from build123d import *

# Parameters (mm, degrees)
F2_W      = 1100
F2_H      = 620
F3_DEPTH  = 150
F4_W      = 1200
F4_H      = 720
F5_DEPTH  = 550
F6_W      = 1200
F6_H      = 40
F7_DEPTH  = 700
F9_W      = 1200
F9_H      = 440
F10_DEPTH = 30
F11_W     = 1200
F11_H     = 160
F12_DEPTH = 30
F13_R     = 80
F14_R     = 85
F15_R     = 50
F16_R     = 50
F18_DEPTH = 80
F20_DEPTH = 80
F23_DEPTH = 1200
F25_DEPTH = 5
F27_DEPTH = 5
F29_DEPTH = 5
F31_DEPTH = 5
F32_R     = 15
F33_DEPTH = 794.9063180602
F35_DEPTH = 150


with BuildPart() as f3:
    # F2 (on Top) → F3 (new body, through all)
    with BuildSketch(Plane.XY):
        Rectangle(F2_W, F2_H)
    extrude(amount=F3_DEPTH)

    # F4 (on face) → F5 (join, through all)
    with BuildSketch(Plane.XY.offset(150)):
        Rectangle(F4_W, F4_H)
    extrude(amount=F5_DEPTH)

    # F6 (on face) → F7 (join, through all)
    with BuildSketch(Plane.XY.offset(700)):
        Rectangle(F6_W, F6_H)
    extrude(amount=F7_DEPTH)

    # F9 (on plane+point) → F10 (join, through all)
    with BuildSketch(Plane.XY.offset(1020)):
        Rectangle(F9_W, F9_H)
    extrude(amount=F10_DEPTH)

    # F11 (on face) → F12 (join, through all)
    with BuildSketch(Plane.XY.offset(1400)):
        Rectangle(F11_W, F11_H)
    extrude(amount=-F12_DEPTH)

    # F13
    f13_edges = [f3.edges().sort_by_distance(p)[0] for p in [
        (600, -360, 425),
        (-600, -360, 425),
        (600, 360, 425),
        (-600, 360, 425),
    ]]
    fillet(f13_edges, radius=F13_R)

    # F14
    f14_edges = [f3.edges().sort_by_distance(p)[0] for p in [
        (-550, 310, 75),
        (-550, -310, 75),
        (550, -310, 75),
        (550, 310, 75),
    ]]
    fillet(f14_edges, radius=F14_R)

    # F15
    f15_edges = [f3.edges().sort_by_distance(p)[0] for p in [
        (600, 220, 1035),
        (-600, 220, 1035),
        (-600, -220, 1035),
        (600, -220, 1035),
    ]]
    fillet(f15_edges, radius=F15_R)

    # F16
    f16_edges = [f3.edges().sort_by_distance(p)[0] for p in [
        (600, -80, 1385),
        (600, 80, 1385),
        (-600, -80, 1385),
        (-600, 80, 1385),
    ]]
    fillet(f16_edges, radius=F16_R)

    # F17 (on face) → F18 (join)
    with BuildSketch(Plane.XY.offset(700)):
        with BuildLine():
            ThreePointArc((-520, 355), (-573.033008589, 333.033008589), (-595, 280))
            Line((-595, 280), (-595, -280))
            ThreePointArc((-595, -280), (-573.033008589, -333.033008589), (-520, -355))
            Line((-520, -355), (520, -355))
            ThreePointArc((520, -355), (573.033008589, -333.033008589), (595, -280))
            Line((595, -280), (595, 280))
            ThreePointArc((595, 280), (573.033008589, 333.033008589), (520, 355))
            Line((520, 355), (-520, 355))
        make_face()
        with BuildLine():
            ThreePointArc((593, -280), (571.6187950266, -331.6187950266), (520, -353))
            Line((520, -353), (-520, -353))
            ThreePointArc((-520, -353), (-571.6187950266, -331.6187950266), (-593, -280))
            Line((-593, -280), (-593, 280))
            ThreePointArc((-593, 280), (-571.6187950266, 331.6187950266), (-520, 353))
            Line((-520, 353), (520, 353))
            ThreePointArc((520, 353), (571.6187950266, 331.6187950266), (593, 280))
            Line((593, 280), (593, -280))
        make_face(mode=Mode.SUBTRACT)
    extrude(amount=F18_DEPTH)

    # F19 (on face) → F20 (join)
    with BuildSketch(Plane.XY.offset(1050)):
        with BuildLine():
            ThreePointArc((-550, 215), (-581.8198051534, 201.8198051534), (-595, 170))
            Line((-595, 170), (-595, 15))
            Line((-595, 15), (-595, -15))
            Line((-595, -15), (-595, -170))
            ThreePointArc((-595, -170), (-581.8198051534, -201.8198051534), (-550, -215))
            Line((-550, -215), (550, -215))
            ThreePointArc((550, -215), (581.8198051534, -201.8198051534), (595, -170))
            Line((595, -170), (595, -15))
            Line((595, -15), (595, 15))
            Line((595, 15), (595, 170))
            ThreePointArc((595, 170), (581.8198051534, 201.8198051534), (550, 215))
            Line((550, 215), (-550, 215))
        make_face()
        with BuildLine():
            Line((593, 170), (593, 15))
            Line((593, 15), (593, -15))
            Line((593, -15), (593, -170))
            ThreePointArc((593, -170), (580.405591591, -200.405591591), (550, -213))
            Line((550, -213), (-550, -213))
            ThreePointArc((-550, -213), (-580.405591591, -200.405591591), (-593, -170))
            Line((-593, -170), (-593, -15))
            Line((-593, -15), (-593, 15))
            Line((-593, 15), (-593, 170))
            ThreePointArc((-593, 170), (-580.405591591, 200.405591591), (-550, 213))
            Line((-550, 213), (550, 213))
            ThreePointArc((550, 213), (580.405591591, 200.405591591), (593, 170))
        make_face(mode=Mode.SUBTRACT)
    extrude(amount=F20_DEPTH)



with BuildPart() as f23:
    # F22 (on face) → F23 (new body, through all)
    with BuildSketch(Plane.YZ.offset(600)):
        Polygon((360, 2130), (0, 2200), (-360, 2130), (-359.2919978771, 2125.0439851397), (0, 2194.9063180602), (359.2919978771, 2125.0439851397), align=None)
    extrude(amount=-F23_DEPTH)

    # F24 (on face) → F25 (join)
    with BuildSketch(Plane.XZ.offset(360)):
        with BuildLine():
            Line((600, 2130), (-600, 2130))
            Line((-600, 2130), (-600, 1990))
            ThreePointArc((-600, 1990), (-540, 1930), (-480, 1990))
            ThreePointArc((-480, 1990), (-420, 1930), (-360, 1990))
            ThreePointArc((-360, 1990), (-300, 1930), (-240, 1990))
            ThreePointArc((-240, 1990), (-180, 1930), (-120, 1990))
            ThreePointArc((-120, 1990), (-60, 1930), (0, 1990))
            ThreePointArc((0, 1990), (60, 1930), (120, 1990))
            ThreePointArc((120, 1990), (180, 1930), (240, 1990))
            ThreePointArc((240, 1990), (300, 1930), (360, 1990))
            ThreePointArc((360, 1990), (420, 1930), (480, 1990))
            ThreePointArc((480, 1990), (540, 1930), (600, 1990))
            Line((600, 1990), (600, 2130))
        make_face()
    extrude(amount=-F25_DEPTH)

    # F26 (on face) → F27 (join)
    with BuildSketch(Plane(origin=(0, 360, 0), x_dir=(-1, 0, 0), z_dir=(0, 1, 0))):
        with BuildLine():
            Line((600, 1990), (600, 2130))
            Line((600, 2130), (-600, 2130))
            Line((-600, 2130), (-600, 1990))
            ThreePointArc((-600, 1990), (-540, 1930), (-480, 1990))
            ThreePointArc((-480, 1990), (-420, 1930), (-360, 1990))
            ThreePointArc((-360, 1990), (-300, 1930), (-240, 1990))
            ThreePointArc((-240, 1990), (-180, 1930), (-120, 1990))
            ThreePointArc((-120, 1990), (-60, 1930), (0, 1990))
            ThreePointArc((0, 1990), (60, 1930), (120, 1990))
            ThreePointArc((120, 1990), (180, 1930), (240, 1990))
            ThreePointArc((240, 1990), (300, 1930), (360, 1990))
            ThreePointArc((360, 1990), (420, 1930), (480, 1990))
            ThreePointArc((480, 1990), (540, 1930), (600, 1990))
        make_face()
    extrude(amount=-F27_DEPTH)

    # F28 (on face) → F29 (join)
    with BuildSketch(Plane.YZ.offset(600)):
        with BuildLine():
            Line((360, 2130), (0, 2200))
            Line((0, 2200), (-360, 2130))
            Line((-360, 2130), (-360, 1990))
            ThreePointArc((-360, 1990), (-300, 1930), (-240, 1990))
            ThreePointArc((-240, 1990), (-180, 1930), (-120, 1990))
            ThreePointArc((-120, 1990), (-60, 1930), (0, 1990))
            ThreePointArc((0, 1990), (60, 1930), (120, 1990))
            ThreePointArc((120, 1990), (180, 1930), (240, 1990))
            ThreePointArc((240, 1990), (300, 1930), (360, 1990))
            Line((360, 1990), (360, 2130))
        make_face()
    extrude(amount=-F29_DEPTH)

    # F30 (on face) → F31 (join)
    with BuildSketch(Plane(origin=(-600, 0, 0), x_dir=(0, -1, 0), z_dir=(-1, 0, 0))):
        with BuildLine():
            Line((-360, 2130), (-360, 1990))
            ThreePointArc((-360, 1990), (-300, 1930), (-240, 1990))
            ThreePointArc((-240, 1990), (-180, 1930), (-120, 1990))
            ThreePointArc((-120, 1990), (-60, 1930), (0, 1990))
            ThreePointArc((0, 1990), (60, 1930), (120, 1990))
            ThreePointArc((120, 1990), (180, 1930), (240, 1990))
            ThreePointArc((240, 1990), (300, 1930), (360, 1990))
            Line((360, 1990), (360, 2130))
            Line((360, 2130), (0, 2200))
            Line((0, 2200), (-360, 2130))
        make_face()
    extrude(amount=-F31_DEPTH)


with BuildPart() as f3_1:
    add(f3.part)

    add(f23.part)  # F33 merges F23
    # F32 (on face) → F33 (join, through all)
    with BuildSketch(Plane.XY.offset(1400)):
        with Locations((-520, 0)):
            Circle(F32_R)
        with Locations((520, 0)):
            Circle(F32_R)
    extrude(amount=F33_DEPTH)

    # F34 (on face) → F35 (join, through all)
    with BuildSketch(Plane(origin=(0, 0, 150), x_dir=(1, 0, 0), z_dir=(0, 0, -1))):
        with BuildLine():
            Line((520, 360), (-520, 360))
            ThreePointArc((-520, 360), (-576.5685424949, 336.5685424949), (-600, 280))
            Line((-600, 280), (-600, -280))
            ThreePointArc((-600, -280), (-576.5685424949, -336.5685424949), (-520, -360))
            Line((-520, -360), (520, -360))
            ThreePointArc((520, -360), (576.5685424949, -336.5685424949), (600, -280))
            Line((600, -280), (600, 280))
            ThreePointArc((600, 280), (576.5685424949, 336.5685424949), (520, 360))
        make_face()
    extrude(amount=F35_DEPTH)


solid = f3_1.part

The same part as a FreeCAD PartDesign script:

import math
import FreeCAD as App
import Part
import Sketcher
from FreeCAD import Vector
Q = App.Units.Quantity


def edges_at(feature, points):
    """Names of the edges that pass closest to the given points."""
    edges = feature.Shape.Edges
    near = lambda p: min(range(len(edges)), key=lambda i: edges[i].distToShape(Part.Vertex(*p))[0])
    return sorted({f"Edge{near(p) + 1}" for p in points})

doc = App.newDocument("Part")
params = doc.addObject("Spreadsheet::Sheet", "Params")
for row, (alias, value) in enumerate([
    ("sketch1_width", "1100 mm"),
    ("sketch1_height", "620 mm"),
    ("pad1_length", "150 mm"),
    ("sketch2_width", "1200 mm"),
    ("sketch2_height", "720 mm"),
    ("pad2_length", "550 mm"),
    ("sketch3_width", "1200 mm"),
    ("sketch3_height", "40 mm"),
    ("pad3_length", "700 mm"),
    ("sketch4_width", "1200 mm"),
    ("sketch4_height", "440 mm"),
    ("pad4_length", "30 mm"),
    ("sketch5_width", "1200 mm"),
    ("sketch5_height", "160 mm"),
    ("pad5_length", "30 mm"),
    ("fillet_radius", "80 mm"),
    ("fillet2_radius", "85 mm"),
    ("fillet3_radius", "50 mm"),
    ("fillet4_radius", "50 mm"),
    ("sketch6_radius", "75 mm"),
    ("sketch6_radius2", "73 mm"),
    ("sketch6_width", "1040 mm"),
    ("sketch6_height", "560 mm"),
    ("pad6_length", "80 mm"),
    ("sketch7_radius", "45 mm"),
    ("sketch7_radius2", "43 mm"),
    ("sketch7_width", "1100 mm"),
    ("sketch7_height", "340 mm"),
    ("pad7_length", "80 mm"),
    ("pad8_length", "1200 mm"),
    ("sketch9_radius", "60 mm"),
    ("sketch9_height", "140 mm"),
    ("pad9_length", "5 mm"),
    ("sketch10_radius", "60 mm"),
    ("sketch10_height", "140 mm"),
    ("pad10_length", "5 mm"),
    ("sketch11_radius", "60 mm"),
    ("sketch11_height", "140 mm"),
    ("pad11_length", "5 mm"),
    ("sketch12_radius", "60 mm"),
    ("sketch12_height", "140 mm"),
    ("pad12_length", "5 mm"),
    ("sketch13_diameter", "30 mm"),
    ("pad13_length", "794.906318 mm"),
    ("sketch14_radius", "80 mm"),
    ("sketch14_width", "1040 mm"),
    ("sketch14_height", "560 mm"),
], start=1):
    params.set(f"A{row}", alias)
    params.set(f"B{row}", "=" + value)
    params.setAlias(f"B{row}", alias)

body = doc.addObject("PartDesign::Body", "Body")

sketch1 = doc.addObject("Sketcher::SketchObject", "Sketch")
body.addObject(sketch1)
sketch1.AttachmentSupport = (doc.XY_Plane, [""])
sketch1.MapMode = "FlatFace"
sketch1.addGeometry(Part.LineSegment(Vector(-550, 310, 0), Vector(-550, -310, 0)), False)
sketch1.addGeometry(Part.LineSegment(Vector(-550, -310, 0), Vector(550, -310, 0)), False)
sketch1.addGeometry(Part.LineSegment(Vector(550, -310, 0), Vector(550, 310, 0)), False)
sketch1.addGeometry(Part.LineSegment(Vector(550, 310, 0), Vector(-550, 310, 0)), False)
sketch1.addConstraint(Sketcher.Constraint("Coincident", 0, 2, 1, 1))
sketch1.addConstraint(Sketcher.Constraint("Coincident", 1, 2, 2, 1))
sketch1.addConstraint(Sketcher.Constraint("Coincident", 2, 2, 3, 1))
sketch1.addConstraint(Sketcher.Constraint("Coincident", 3, 2, 0, 1))
sketch1.addConstraint(Sketcher.Constraint("Vertical", 0))
sketch1.addConstraint(Sketcher.Constraint("Horizontal", 1))
sketch1.addConstraint(Sketcher.Constraint("Vertical", 2))
sketch1.addConstraint(Sketcher.Constraint("Horizontal", 3))
sketch1.addConstraint(Sketcher.Constraint("Symmetric", 0, 2, 2, 2, -1, 1))
sketch1.addConstraint(Sketcher.Constraint("DistanceX", 1, 1, 1, 2, Q("1100 mm")))
sketch1.addConstraint(Sketcher.Constraint("DistanceY", 0, 2, 0, 1, Q("620 mm")))
sketch1.setExpression("Constraints[9]", "Params.sketch1_width")
sketch1.setExpression("Constraints[10]", "Params.sketch1_height")
pad1 = doc.addObject("PartDesign::Pad", "Pad")
body.addObject(pad1)
pad1.Profile = sketch1
pad1.setExpression("Length", "Params.pad1_length")

sketch2 = doc.addObject("Sketcher::SketchObject", "Sketch001")
body.addObject(sketch2)
sketch2.AttachmentSupport = (doc.XY_Plane, [""])
sketch2.MapMode = "FlatFace"
sketch2.AttachmentOffset = App.Placement(Vector(0, 0, 150), App.Rotation())
sketch2.addGeometry(Part.LineSegment(Vector(-600, 360, 0), Vector(-600, -360, 0)), False)
sketch2.addGeometry(Part.LineSegment(Vector(-600, -360, 0), Vector(600, -360, 0)), False)
sketch2.addGeometry(Part.LineSegment(Vector(600, -360, 0), Vector(600, 360, 0)), False)
sketch2.addGeometry(Part.LineSegment(Vector(600, 360, 0), Vector(-600, 360, 0)), False)
sketch2.addConstraint(Sketcher.Constraint("Coincident", 0, 2, 1, 1))
sketch2.addConstraint(Sketcher.Constraint("Coincident", 1, 2, 2, 1))
sketch2.addConstraint(Sketcher.Constraint("Coincident", 2, 2, 3, 1))
sketch2.addConstraint(Sketcher.Constraint("Coincident", 3, 2, 0, 1))
sketch2.addConstraint(Sketcher.Constraint("Vertical", 0))
sketch2.addConstraint(Sketcher.Constraint("Horizontal", 1))
sketch2.addConstraint(Sketcher.Constraint("Vertical", 2))
sketch2.addConstraint(Sketcher.Constraint("Horizontal", 3))
sketch2.addConstraint(Sketcher.Constraint("Symmetric", 0, 2, 2, 2, -1, 1))
sketch2.addConstraint(Sketcher.Constraint("DistanceX", 1, 1, 1, 2, Q("1200 mm")))
sketch2.addConstraint(Sketcher.Constraint("DistanceY", 0, 2, 0, 1, Q("720 mm")))
sketch2.setExpression("Constraints[9]", "Params.sketch2_width")
sketch2.setExpression("Constraints[10]", "Params.sketch2_height")
pad2 = doc.addObject("PartDesign::Pad", "Pad001")
body.addObject(pad2)
pad2.Profile = sketch2
pad2.setExpression("Length", "Params.pad2_length")

sketch3 = doc.addObject("Sketcher::SketchObject", "Sketch002")
body.addObject(sketch3)
sketch3.AttachmentSupport = (doc.XY_Plane, [""])
sketch3.MapMode = "FlatFace"
sketch3.AttachmentOffset = App.Placement(Vector(0, 0, 700), App.Rotation())
sketch3.addGeometry(Part.LineSegment(Vector(-600, 20, 0), Vector(-600, -20, 0)), False)
sketch3.addGeometry(Part.LineSegment(Vector(-600, -20, 0), Vector(600, -20, 0)), False)
sketch3.addGeometry(Part.LineSegment(Vector(600, -20, 0), Vector(600, 20, 0)), False)
sketch3.addGeometry(Part.LineSegment(Vector(600, 20, 0), Vector(-600, 20, 0)), False)
sketch3.addConstraint(Sketcher.Constraint("Coincident", 0, 2, 1, 1))
sketch3.addConstraint(Sketcher.Constraint("Coincident", 1, 2, 2, 1))
sketch3.addConstraint(Sketcher.Constraint("Coincident", 2, 2, 3, 1))
sketch3.addConstraint(Sketcher.Constraint("Coincident", 3, 2, 0, 1))
sketch3.addConstraint(Sketcher.Constraint("Vertical", 0))
sketch3.addConstraint(Sketcher.Constraint("Horizontal", 1))
sketch3.addConstraint(Sketcher.Constraint("Vertical", 2))
sketch3.addConstraint(Sketcher.Constraint("Horizontal", 3))
sketch3.addConstraint(Sketcher.Constraint("Symmetric", 0, 2, 2, 2, -1, 1))
sketch3.addConstraint(Sketcher.Constraint("DistanceX", 1, 1, 1, 2, Q("1200 mm")))
sketch3.addConstraint(Sketcher.Constraint("DistanceY", 0, 2, 0, 1, Q("40 mm")))
sketch3.setExpression("Constraints[9]", "Params.sketch3_width")
sketch3.setExpression("Constraints[10]", "Params.sketch3_height")
pad3 = doc.addObject("PartDesign::Pad", "Pad002")
body.addObject(pad3)
pad3.Profile = sketch3
pad3.setExpression("Length", "Params.pad3_length")

sketch4 = doc.addObject("Sketcher::SketchObject", "Sketch003")
body.addObject(sketch4)
sketch4.AttachmentSupport = (doc.XY_Plane, [""])
sketch4.MapMode = "FlatFace"
sketch4.AttachmentOffset = App.Placement(Vector(0, 0, 1020), App.Rotation())
sketch4.addGeometry(Part.LineSegment(Vector(-600, 220, 0), Vector(-600, -220, 0)), False)
sketch4.addGeometry(Part.LineSegment(Vector(-600, -220, 0), Vector(600, -220, 0)), False)
sketch4.addGeometry(Part.LineSegment(Vector(600, -220, 0), Vector(600, 220, 0)), False)
sketch4.addGeometry(Part.LineSegment(Vector(600, 220, 0), Vector(-600, 220, 0)), False)
sketch4.addConstraint(Sketcher.Constraint("Coincident", 0, 2, 1, 1))
sketch4.addConstraint(Sketcher.Constraint("Coincident", 1, 2, 2, 1))
sketch4.addConstraint(Sketcher.Constraint("Coincident", 2, 2, 3, 1))
sketch4.addConstraint(Sketcher.Constraint("Coincident", 3, 2, 0, 1))
sketch4.addConstraint(Sketcher.Constraint("Vertical", 0))
sketch4.addConstraint(Sketcher.Constraint("Horizontal", 1))
sketch4.addConstraint(Sketcher.Constraint("Vertical", 2))
sketch4.addConstraint(Sketcher.Constraint("Horizontal", 3))
sketch4.addConstraint(Sketcher.Constraint("Symmetric", 0, 2, 2, 2, -1, 1))
sketch4.addConstraint(Sketcher.Constraint("DistanceX", 1, 1, 1, 2, Q("1200 mm")))
sketch4.addConstraint(Sketcher.Constraint("DistanceY", 0, 2, 0, 1, Q("440 mm")))
sketch4.setExpression("Constraints[9]", "Params.sketch4_width")
sketch4.setExpression("Constraints[10]", "Params.sketch4_height")
pad4 = doc.addObject("PartDesign::Pad", "Pad003")
body.addObject(pad4)
pad4.Profile = sketch4
pad4.setExpression("Length", "Params.pad4_length")

sketch5 = doc.addObject("Sketcher::SketchObject", "Sketch004")
body.addObject(sketch5)
sketch5.AttachmentSupport = (doc.XY_Plane, [""])
sketch5.MapMode = "FlatFace"
sketch5.AttachmentOffset = App.Placement(Vector(0, 0, 1400), App.Rotation())
sketch5.addGeometry(Part.LineSegment(Vector(-600, 80, 0), Vector(-600, -80, 0)), False)
sketch5.addGeometry(Part.LineSegment(Vector(-600, -80, 0), Vector(600, -80, 0)), False)
sketch5.addGeometry(Part.LineSegment(Vector(600, -80, 0), Vector(600, 80, 0)), False)
sketch5.addGeometry(Part.LineSegment(Vector(600, 80, 0), Vector(-600, 80, 0)), False)
sketch5.addConstraint(Sketcher.Constraint("Coincident", 0, 2, 1, 1))
sketch5.addConstraint(Sketcher.Constraint("Coincident", 1, 2, 2, 1))
sketch5.addConstraint(Sketcher.Constraint("Coincident", 2, 2, 3, 1))
sketch5.addConstraint(Sketcher.Constraint("Coincident", 3, 2, 0, 1))
sketch5.addConstraint(Sketcher.Constraint("Vertical", 0))
sketch5.addConstraint(Sketcher.Constraint("Horizontal", 1))
sketch5.addConstraint(Sketcher.Constraint("Vertical", 2))
sketch5.addConstraint(Sketcher.Constraint("Horizontal", 3))
sketch5.addConstraint(Sketcher.Constraint("Symmetric", 0, 2, 2, 2, -1, 1))
sketch5.addConstraint(Sketcher.Constraint("DistanceX", 1, 1, 1, 2, Q("1200 mm")))
sketch5.addConstraint(Sketcher.Constraint("DistanceY", 0, 2, 0, 1, Q("160 mm")))
sketch5.setExpression("Constraints[9]", "Params.sketch5_width")
sketch5.setExpression("Constraints[10]", "Params.sketch5_height")
pad5 = doc.addObject("PartDesign::Pad", "Pad004")
body.addObject(pad5)
pad5.Profile = sketch5
pad5.setExpression("Length", "Params.pad5_length")
pad5.Reversed = True
doc.recompute()

fillet = doc.addObject("PartDesign::Fillet", "Fillet")
body.addObject(fillet)
fillet.Base = (pad5, edges_at(pad5, [
    (600, -360, 425),
    (-600, -360, 425),
    (600, 360, 425),
    (-600, 360, 425),
]))
fillet.setExpression("Radius", "Params.fillet_radius")
doc.recompute()

fillet2 = doc.addObject("PartDesign::Fillet", "Fillet001")
body.addObject(fillet2)
fillet2.Base = (fillet, edges_at(fillet, [
    (-550, 310, 75),
    (-550, -310, 75),
    (550, -310, 75),
    (550, 310, 75),
]))
fillet2.setExpression("Radius", "Params.fillet2_radius")
doc.recompute()

fillet3 = doc.addObject("PartDesign::Fillet", "Fillet002")
body.addObject(fillet3)
fillet3.Base = (fillet2, edges_at(fillet2, [
    (600, 220, 1035),
    (-600, 220, 1035),
    (-600, -220, 1035),
    (600, -220, 1035),
]))
fillet3.setExpression("Radius", "Params.fillet3_radius")
doc.recompute()

fillet4 = doc.addObject("PartDesign::Fillet", "Fillet003")
body.addObject(fillet4)
fillet4.Base = (fillet3, edges_at(fillet3, [
    (600, -80, 1385),
    (600, 80, 1385),
    (-600, -80, 1385),
    (-600, 80, 1385),
]))
fillet4.setExpression("Radius", "Params.fillet4_radius")

sketch6 = doc.addObject("Sketcher::SketchObject", "Sketch005")
body.addObject(sketch6)
sketch6.AttachmentSupport = (doc.XY_Plane, [""])
sketch6.MapMode = "FlatFace"
sketch6.AttachmentOffset = App.Placement(Vector(0, 0, 700), App.Rotation())
sketch6.addGeometry(Part.ArcOfCircle(Part.Circle(Vector(-520, 280, 0), Vector(0, 0, 1), 75), math.radians(90), math.radians(180)), False)
sketch6.addGeometry(Part.LineSegment(Vector(-595, 280, 0), Vector(-595, -280, 0)), False)
sketch6.addGeometry(Part.ArcOfCircle(Part.Circle(Vector(-520, -280, 0), Vector(0, 0, 1), 75), math.radians(180), math.radians(270)), False)
sketch6.addGeometry(Part.LineSegment(Vector(-520, -355, 0), Vector(520, -355, 0)), False)
sketch6.addGeometry(Part.ArcOfCircle(Part.Circle(Vector(520, -280, 0), Vector(0, 0, 1), 75), math.radians(-90), math.radians(0)), False)
sketch6.addGeometry(Part.LineSegment(Vector(595, -280, 0), Vector(595, 280, 0)), False)
sketch6.addGeometry(Part.ArcOfCircle(Part.Circle(Vector(520, 280, 0), Vector(0, 0, 1), 75), math.radians(0), math.radians(90)), False)
sketch6.addGeometry(Part.LineSegment(Vector(520, 355, 0), Vector(-520, 355, 0)), False)
sketch6.addGeometry(Part.LineSegment(Vector(593, 280, 0), Vector(593, -280, 0)), False)
sketch6.addGeometry(Part.ArcOfCircle(Part.Circle(Vector(520, -280, 0), Vector(0, 0, 1), 73), math.radians(-90), math.radians(0)), False)
sketch6.addGeometry(Part.LineSegment(Vector(520, -353, 0), Vector(-520, -353, 0)), False)
sketch6.addGeometry(Part.ArcOfCircle(Part.Circle(Vector(-520, -280, 0), Vector(0, 0, 1), 73), math.radians(180), math.radians(270)), False)
sketch6.addGeometry(Part.LineSegment(Vector(-593, -280, 0), Vector(-593, 280, 0)), False)
sketch6.addGeometry(Part.ArcOfCircle(Part.Circle(Vector(-520, 280, 0), Vector(0, 0, 1), 73), math.radians(90), math.radians(180)), False)
sketch6.addGeometry(Part.LineSegment(Vector(-520, 353, 0), Vector(520, 353, 0)), False)
sketch6.addGeometry(Part.ArcOfCircle(Part.Circle(Vector(520, 280, 0), Vector(0, 0, 1), 73), math.radians(0), math.radians(90)), False)
sketch6.addConstraint(Sketcher.Constraint("Tangent", 0, 2, 1, 1))
sketch6.addConstraint(Sketcher.Constraint("Tangent", 1, 2, 2, 1))
sketch6.addConstraint(Sketcher.Constraint("Tangent", 2, 2, 3, 1))
sketch6.addConstraint(Sketcher.Constraint("Tangent", 3, 2, 4, 1))
sketch6.addConstraint(Sketcher.Constraint("Tangent", 4, 2, 5, 1))
sketch6.addConstraint(Sketcher.Constraint("Tangent", 5, 2, 6, 1))
sketch6.addConstraint(Sketcher.Constraint("Tangent", 6, 2, 7, 1))
sketch6.addConstraint(Sketcher.Constraint("Tangent", 7, 2, 0, 1))
sketch6.addConstraint(Sketcher.Constraint("Tangent", 8, 2, 9, 2))
sketch6.addConstraint(Sketcher.Constraint("Tangent", 9, 1, 10, 1))
sketch6.addConstraint(Sketcher.Constraint("Tangent", 10, 2, 11, 2))
sketch6.addConstraint(Sketcher.Constraint("Tangent", 11, 1, 12, 1))
sketch6.addConstraint(Sketcher.Constraint("Tangent", 12, 2, 13, 2))
sketch6.addConstraint(Sketcher.Constraint("Tangent", 13, 1, 14, 1))
sketch6.addConstraint(Sketcher.Constraint("Tangent", 14, 2, 15, 2))
sketch6.addConstraint(Sketcher.Constraint("Tangent", 15, 1, 8, 1))
sketch6.addConstraint(Sketcher.Constraint("Vertical", 1))
sketch6.addConstraint(Sketcher.Constraint("Horizontal", 3))
sketch6.addConstraint(Sketcher.Constraint("Vertical", 5))
sketch6.addConstraint(Sketcher.Constraint("Horizontal", 7))
sketch6.addConstraint(Sketcher.Constraint("Vertical", 8))
sketch6.addConstraint(Sketcher.Constraint("Horizontal", 10))
sketch6.addConstraint(Sketcher.Constraint("Vertical", 12))
sketch6.addConstraint(Sketcher.Constraint("Horizontal", 14))
sketch6.addConstraint(Sketcher.Constraint("Coincident", 9, 3, 4, 3))
sketch6.addConstraint(Sketcher.Constraint("Coincident", 11, 3, 2, 3))
sketch6.addConstraint(Sketcher.Constraint("Coincident", 13, 3, 0, 3))
sketch6.addConstraint(Sketcher.Constraint("Equal", 0, 2))
sketch6.addConstraint(Sketcher.Constraint("Equal", 2, 4))
sketch6.addConstraint(Sketcher.Constraint("Equal", 4, 6))
sketch6.addConstraint(Sketcher.Constraint("Equal", 13, 15))
sketch6.addConstraint(Sketcher.Constraint("Symmetric", 0, 3, 4, 3, -1, 1))
sketch6.addConstraint(Sketcher.Constraint("Radius", 0, Q("75 mm")))
sketch6.addConstraint(Sketcher.Constraint("Radius", 9, Q("73 mm")))
sketch6.addConstraint(Sketcher.Constraint("DistanceX", 3, 1, 3, 2, Q("1040 mm")))
sketch6.addConstraint(Sketcher.Constraint("DistanceY", 1, 2, 1, 1, Q("560 mm")))
sketch6.setExpression("Constraints[32]", "Params.sketch6_radius")
sketch6.setExpression("Constraints[33]", "Params.sketch6_radius2")
sketch6.setExpression("Constraints[34]", "Params.sketch6_width")
sketch6.setExpression("Constraints[35]", "Params.sketch6_height")
pad6 = doc.addObject("PartDesign::Pad", "Pad005")
body.addObject(pad6)
pad6.Profile = sketch6
pad6.setExpression("Length", "Params.pad6_length")

sketch7 = doc.addObject("Sketcher::SketchObject", "Sketch006")
body.addObject(sketch7)
sketch7.AttachmentSupport = (doc.XY_Plane, [""])
sketch7.MapMode = "FlatFace"
sketch7.AttachmentOffset = App.Placement(Vector(0, 0, 1050), App.Rotation())
sketch7.addGeometry(Part.ArcOfCircle(Part.Circle(Vector(-550, 170, 0), Vector(0, 0, 1), 45), math.radians(90), math.radians(180)), False)
sketch7.addGeometry(Part.LineSegment(Vector(-595, 170, 0), Vector(-595, -170, 0)), False)
sketch7.addGeometry(Part.ArcOfCircle(Part.Circle(Vector(-550, -170, 0), Vector(0, 0, 1), 45), math.radians(180), math.radians(270)), False)
sketch7.addGeometry(Part.LineSegment(Vector(-550, -215, 0), Vector(550, -215, 0)), False)
sketch7.addGeometry(Part.ArcOfCircle(Part.Circle(Vector(550, -170, 0), Vector(0, 0, 1), 45), math.radians(-90), math.radians(0)), False)
sketch7.addGeometry(Part.LineSegment(Vector(595, -170, 0), Vector(595, 170, 0)), False)
sketch7.addGeometry(Part.ArcOfCircle(Part.Circle(Vector(550, 170, 0), Vector(0, 0, 1), 45), math.radians(0), math.radians(90)), False)
sketch7.addGeometry(Part.LineSegment(Vector(550, 215, 0), Vector(-550, 215, 0)), False)
sketch7.addGeometry(Part.ArcOfCircle(Part.Circle(Vector(550, 170, 0), Vector(0, 0, 1), 43), math.radians(0), math.radians(90)), False)
sketch7.addGeometry(Part.LineSegment(Vector(593, 170, 0), Vector(593, -170, 0)), False)
sketch7.addGeometry(Part.ArcOfCircle(Part.Circle(Vector(550, -170, 0), Vector(0, 0, 1), 43), math.radians(-90), math.radians(0)), False)
sketch7.addGeometry(Part.LineSegment(Vector(550, -213, 0), Vector(-550, -213, 0)), False)
sketch7.addGeometry(Part.ArcOfCircle(Part.Circle(Vector(-550, -170, 0), Vector(0, 0, 1), 43), math.radians(180), math.radians(270)), False)
sketch7.addGeometry(Part.LineSegment(Vector(-593, -170, 0), Vector(-593, 170, 0)), False)
sketch7.addGeometry(Part.ArcOfCircle(Part.Circle(Vector(-550, 170, 0), Vector(0, 0, 1), 43), math.radians(90), math.radians(180)), False)
sketch7.addGeometry(Part.LineSegment(Vector(-550, 213, 0), Vector(550, 213, 0)), False)
sketch7.addConstraint(Sketcher.Constraint("Tangent", 0, 2, 1, 1))
sketch7.addConstraint(Sketcher.Constraint("Tangent", 1, 2, 2, 1))
sketch7.addConstraint(Sketcher.Constraint("Tangent", 2, 2, 3, 1))
sketch7.addConstraint(Sketcher.Constraint("Tangent", 3, 2, 4, 1))
sketch7.addConstraint(Sketcher.Constraint("Tangent", 4, 2, 5, 1))
sketch7.addConstraint(Sketcher.Constraint("Tangent", 5, 2, 6, 1))
sketch7.addConstraint(Sketcher.Constraint("Tangent", 6, 2, 7, 1))
sketch7.addConstraint(Sketcher.Constraint("Tangent", 7, 2, 0, 1))
sketch7.addConstraint(Sketcher.Constraint("Tangent", 8, 1, 9, 1))
sketch7.addConstraint(Sketcher.Constraint("Tangent", 9, 2, 10, 2))
sketch7.addConstraint(Sketcher.Constraint("Tangent", 10, 1, 11, 1))
sketch7.addConstraint(Sketcher.Constraint("Tangent", 11, 2, 12, 2))
sketch7.addConstraint(Sketcher.Constraint("Tangent", 12, 1, 13, 1))
sketch7.addConstraint(Sketcher.Constraint("Tangent", 13, 2, 14, 2))
sketch7.addConstraint(Sketcher.Constraint("Tangent", 14, 1, 15, 1))
sketch7.addConstraint(Sketcher.Constraint("Tangent", 15, 2, 8, 2))
sketch7.addConstraint(Sketcher.Constraint("Vertical", 1))
sketch7.addConstraint(Sketcher.Constraint("Horizontal", 3))
sketch7.addConstraint(Sketcher.Constraint("Vertical", 5))
sketch7.addConstraint(Sketcher.Constraint("Horizontal", 7))
sketch7.addConstraint(Sketcher.Constraint("Vertical", 9))
sketch7.addConstraint(Sketcher.Constraint("Horizontal", 11))
sketch7.addConstraint(Sketcher.Constraint("Vertical", 13))
sketch7.addConstraint(Sketcher.Constraint("Horizontal", 15))
sketch7.addConstraint(Sketcher.Constraint("Coincident", 8, 3, 6, 3))
sketch7.addConstraint(Sketcher.Constraint("Coincident", 10, 3, 4, 3))
sketch7.addConstraint(Sketcher.Constraint("Coincident", 12, 3, 2, 3))
sketch7.addConstraint(Sketcher.Constraint("Equal", 0, 2))
sketch7.addConstraint(Sketcher.Constraint("Equal", 2, 4))
sketch7.addConstraint(Sketcher.Constraint("Equal", 4, 6))
sketch7.addConstraint(Sketcher.Constraint("Equal", 12, 14))
sketch7.addConstraint(Sketcher.Constraint("Symmetric", 0, 3, 4, 3, -1, 1))
sketch7.addConstraint(Sketcher.Constraint("Radius", 0, Q("45 mm")))
sketch7.addConstraint(Sketcher.Constraint("Radius", 8, Q("43 mm")))
sketch7.addConstraint(Sketcher.Constraint("DistanceX", 3, 1, 3, 2, Q("1100 mm")))
sketch7.addConstraint(Sketcher.Constraint("DistanceY", 1, 2, 1, 1, Q("340 mm")))
sketch7.setExpression("Constraints[32]", "Params.sketch7_radius")
sketch7.setExpression("Constraints[33]", "Params.sketch7_radius2")
sketch7.setExpression("Constraints[34]", "Params.sketch7_width")
sketch7.setExpression("Constraints[35]", "Params.sketch7_height")
pad7 = doc.addObject("PartDesign::Pad", "Pad006")
body.addObject(pad7)
pad7.Profile = sketch7
pad7.setExpression("Length", "Params.pad7_length")
body2 = doc.addObject("PartDesign::Body", "Body001")

sketch8 = doc.addObject("Sketcher::SketchObject", "Sketch007")
body2.addObject(sketch8)
sketch8.AttachmentSupport = (doc.getObject("YZ_Plane001"), [""])
sketch8.MapMode = "FlatFace"
sketch8.AttachmentOffset = App.Placement(Vector(0, 0, 600), App.Rotation())
sketch8.addGeometry(Part.LineSegment(Vector(360, 2130, 0), Vector(0, 2200, 0)), False)
sketch8.addGeometry(Part.LineSegment(Vector(0, 2200, 0), Vector(-360, 2130, 0)), False)
sketch8.addGeometry(Part.LineSegment(Vector(-360, 2130, 0), Vector(-359.291998, 2125.043985, 0)), False)
sketch8.addGeometry(Part.LineSegment(Vector(-359.291998, 2125.043985, 0), Vector(0, 2194.906318, 0)), False)
sketch8.addGeometry(Part.LineSegment(Vector(0, 2194.906318, 0), Vector(359.291998, 2125.043985, 0)), False)
sketch8.addGeometry(Part.LineSegment(Vector(359.291998, 2125.043985, 0), Vector(360, 2130, 0)), False)
sketch8.addConstraint(Sketcher.Constraint("Coincident", 0, 2, 1, 1))
sketch8.addConstraint(Sketcher.Constraint("Coincident", 1, 2, 2, 1))
sketch8.addConstraint(Sketcher.Constraint("Coincident", 2, 2, 3, 1))
sketch8.addConstraint(Sketcher.Constraint("Coincident", 3, 2, 4, 1))
sketch8.addConstraint(Sketcher.Constraint("Coincident", 4, 2, 5, 1))
sketch8.addConstraint(Sketcher.Constraint("Coincident", 5, 2, 0, 1))
sketch8.addConstraint(Sketcher.Constraint("Symmetric", 2, 2, 4, 2, -2))
sketch8.addConstraint(Sketcher.Constraint("Symmetric", 1, 2, 5, 2, -2))
sketch8.addConstraint(Sketcher.Constraint("PointOnObject", 0, 2, -2))
sketch8.addConstraint(Sketcher.Constraint("PointOnObject", 3, 2, -2))
sketch8.addConstraint(Sketcher.Constraint("Parallel", 1, 3))
sketch8.addConstraint(Sketcher.Constraint("DistanceY", -1, 1, 0, 2, Q("2200 mm")))
sketch8.addConstraint(Sketcher.Constraint("DistanceX", 1, 2, -1, 1, Q("360 mm")))
sketch8.addConstraint(Sketcher.Constraint("DistanceY", -1, 1, 1, 2, Q("2130 mm")))
sketch8.addConstraint(Sketcher.Constraint("Distance", 2, Q("5.006331 mm")))
sketch8.addConstraint(Sketcher.Constraint("DistanceY", -1, 1, 3, 2, Q("2194.906318 mm")))
pad8 = doc.addObject("PartDesign::Pad", "Pad007")
body2.addObject(pad8)
pad8.Profile = sketch8
pad8.setExpression("Length", "Params.pad8_length")
pad8.Reversed = True

sketch9 = doc.addObject("Sketcher::SketchObject", "Sketch008")
body2.addObject(sketch9)
sketch9.AttachmentSupport = (doc.getObject("XZ_Plane001"), [""])
sketch9.MapMode = "FlatFace"
sketch9.AttachmentOffset = App.Placement(Vector(0, 0, 360), App.Rotation())
sketch9.addGeometry(Part.LineSegment(Vector(600, 2130, 0), Vector(-600, 2130, 0)), False)
sketch9.addGeometry(Part.LineSegment(Vector(-600, 2130, 0), Vector(-600, 1990, 0)), False)
sketch9.addGeometry(Part.ArcOfCircle(Part.Circle(Vector(-540, 1990, 0), Vector(0, 0, 1), 60), math.radians(180), math.radians(360)), False)
sketch9.addGeometry(Part.ArcOfCircle(Part.Circle(Vector(-420, 1990, 0), Vector(0, 0, 1), 60), math.radians(180), math.radians(360)), False)
sketch9.addGeometry(Part.ArcOfCircle(Part.Circle(Vector(-300, 1990, 0), Vector(0, 0, 1), 60), math.radians(180), math.radians(360)), False)
sketch9.addGeometry(Part.ArcOfCircle(Part.Circle(Vector(-180, 1990, 0), Vector(0, 0, 1), 60), math.radians(180), math.radians(360)), False)
sketch9.addGeometry(Part.ArcOfCircle(Part.Circle(Vector(-60, 1990, 0), Vector(0, 0, 1), 60), math.radians(180), math.radians(360)), False)
sketch9.addGeometry(Part.ArcOfCircle(Part.Circle(Vector(60, 1990, 0), Vector(0, 0, 1), 60), math.radians(180), math.radians(360)), False)
sketch9.addGeometry(Part.ArcOfCircle(Part.Circle(Vector(180, 1990, 0), Vector(0, 0, 1), 60), math.radians(180), math.radians(360)), False)
sketch9.addGeometry(Part.ArcOfCircle(Part.Circle(Vector(300, 1990, 0), Vector(0, 0, 1), 60), math.radians(180), math.radians(360)), False)
sketch9.addGeometry(Part.ArcOfCircle(Part.Circle(Vector(420, 1990, 0), Vector(0, 0, 1), 60), math.radians(180), math.radians(360)), False)
sketch9.addGeometry(Part.ArcOfCircle(Part.Circle(Vector(540, 1990, 0), Vector(0, 0, 1), 60), math.radians(180), math.radians(360)), False)
sketch9.addGeometry(Part.LineSegment(Vector(600, 1990, 0), Vector(600, 2130, 0)), False)
sketch9.addConstraint(Sketcher.Constraint("Coincident", 0, 2, 1, 1))
sketch9.addConstraint(Sketcher.Constraint("Tangent", 1, 2, 2, 1))
sketch9.addConstraint(Sketcher.Constraint("Tangent", 2, 2, 3, 1))
sketch9.addConstraint(Sketcher.Constraint("Tangent", 3, 2, 4, 1))
sketch9.addConstraint(Sketcher.Constraint("Tangent", 4, 2, 5, 1))
sketch9.addConstraint(Sketcher.Constraint("Tangent", 5, 2, 6, 1))
sketch9.addConstraint(Sketcher.Constraint("Tangent", 6, 2, 7, 1))
sketch9.addConstraint(Sketcher.Constraint("Tangent", 7, 2, 8, 1))
sketch9.addConstraint(Sketcher.Constraint("Tangent", 8, 2, 9, 1))
sketch9.addConstraint(Sketcher.Constraint("Tangent", 9, 2, 10, 1))
sketch9.addConstraint(Sketcher.Constraint("Tangent", 10, 2, 11, 1))
sketch9.addConstraint(Sketcher.Constraint("Tangent", 11, 2, 12, 1))
sketch9.addConstraint(Sketcher.Constraint("Coincident", 12, 2, 0, 1))
sketch9.addConstraint(Sketcher.Constraint("Horizontal", 0))
sketch9.addConstraint(Sketcher.Constraint("Vertical", 1))
sketch9.addConstraint(Sketcher.Constraint("Vertical", 12))
sketch9.addConstraint(Sketcher.Constraint("Equal", 2, 3))
sketch9.addConstraint(Sketcher.Constraint("Equal", 3, 4))
sketch9.addConstraint(Sketcher.Constraint("Equal", 4, 5))
sketch9.addConstraint(Sketcher.Constraint("Equal", 5, 6))
sketch9.addConstraint(Sketcher.Constraint("Equal", 6, 7))
sketch9.addConstraint(Sketcher.Constraint("Equal", 7, 8))
sketch9.addConstraint(Sketcher.Constraint("Equal", 8, 9))
sketch9.addConstraint(Sketcher.Constraint("Equal", 9, 10))
sketch9.addConstraint(Sketcher.Constraint("Equal", 10, 11))
sketch9.addConstraint(Sketcher.Constraint("Symmetric", 6, 3, 7, 3, -2))
sketch9.addConstraint(Sketcher.Constraint("Horizontal", 2, 3, 3, 3))
sketch9.addConstraint(Sketcher.Constraint("Horizontal", 3, 3, 4, 3))
sketch9.addConstraint(Sketcher.Constraint("Horizontal", 4, 3, 5, 3))
sketch9.addConstraint(Sketcher.Constraint("Horizontal", 5, 3, 6, 3))
sketch9.addConstraint(Sketcher.Constraint("Horizontal", 7, 3, 8, 3))
sketch9.addConstraint(Sketcher.Constraint("Horizontal", 8, 3, 9, 3))
sketch9.addConstraint(Sketcher.Constraint("Horizontal", 9, 3, 10, 3))
sketch9.addConstraint(Sketcher.Constraint("Horizontal", 10, 3, 11, 3))
sketch9.addConstraint(Sketcher.Constraint("Radius", 2, Q("60 mm")))
sketch9.addConstraint(Sketcher.Constraint("DistanceY", 1, 2, 1, 1, Q("140 mm")))
sketch9.addConstraint(Sketcher.Constraint("DistanceY", -1, 1, 2, 3, Q("1990 mm")))
sketch9.setExpression("Constraints[34]", "Params.sketch9_radius")
sketch9.setExpression("Constraints[35]", "Params.sketch9_height")
pad9 = doc.addObject("PartDesign::Pad", "Pad008")
body2.addObject(pad9)
pad9.Profile = sketch9
pad9.setExpression("Length", "Params.pad9_length")
pad9.Reversed = True

sketch10 = doc.addObject("Sketcher::SketchObject", "Sketch009")
body2.addObject(sketch10)
sketch10.AttachmentSupport = (doc.getObject("XZ_Plane001"), [""])
sketch10.MapMode = "FlatFace"
sketch10.AttachmentOffset = App.Placement(Vector(0, 0, -360), App.Rotation())
sketch10.addGeometry(Part.LineSegment(Vector(-600, 1990, 0), Vector(-600, 2130, 0)), False)
sketch10.addGeometry(Part.LineSegment(Vector(-600, 2130, 0), Vector(600, 2130, 0)), False)
sketch10.addGeometry(Part.LineSegment(Vector(600, 2130, 0), Vector(600, 1990, 0)), False)
sketch10.addGeometry(Part.ArcOfCircle(Part.Circle(Vector(540, 1990, 0), Vector(0, 0, 1), 60), math.radians(180), math.radians(360)), False)
sketch10.addGeometry(Part.ArcOfCircle(Part.Circle(Vector(420, 1990, 0), Vector(0, 0, 1), 60), math.radians(180), math.radians(360)), False)
sketch10.addGeometry(Part.ArcOfCircle(Part.Circle(Vector(300, 1990, 0), Vector(0, 0, 1), 60), math.radians(180), math.radians(360)), False)
sketch10.addGeometry(Part.ArcOfCircle(Part.Circle(Vector(180, 1990, 0), Vector(0, 0, 1), 60), math.radians(180), math.radians(360)), False)
sketch10.addGeometry(Part.ArcOfCircle(Part.Circle(Vector(60, 1990, 0), Vector(0, 0, 1), 60), math.radians(180), math.radians(360)), False)
sketch10.addGeometry(Part.ArcOfCircle(Part.Circle(Vector(-60, 1990, 0), Vector(0, 0, 1), 60), math.radians(180), math.radians(360)), False)
sketch10.addGeometry(Part.ArcOfCircle(Part.Circle(Vector(-180, 1990, 0), Vector(0, 0, 1), 60), math.radians(180), math.radians(360)), False)
sketch10.addGeometry(Part.ArcOfCircle(Part.Circle(Vector(-300, 1990, 0), Vector(0, 0, 1), 60), math.radians(180), math.radians(360)), False)
sketch10.addGeometry(Part.ArcOfCircle(Part.Circle(Vector(-420, 1990, 0), Vector(0, 0, 1), 60), math.radians(180), math.radians(360)), False)
sketch10.addGeometry(Part.ArcOfCircle(Part.Circle(Vector(-540, 1990, 0), Vector(0, 0, 1), 60), math.radians(180), math.radians(360)), False)
sketch10.addConstraint(Sketcher.Constraint("Coincident", 0, 2, 1, 1))
sketch10.addConstraint(Sketcher.Constraint("Coincident", 1, 2, 2, 1))
sketch10.addConstraint(Sketcher.Constraint("Tangent", 2, 2, 3, 2))
sketch10.addConstraint(Sketcher.Constraint("Tangent", 3, 1, 4, 2))
sketch10.addConstraint(Sketcher.Constraint("Tangent", 4, 1, 5, 2))
sketch10.addConstraint(Sketcher.Constraint("Tangent", 5, 1, 6, 2))
sketch10.addConstraint(Sketcher.Constraint("Tangent", 6, 1, 7, 2))
sketch10.addConstraint(Sketcher.Constraint("Tangent", 7, 1, 8, 2))
sketch10.addConstraint(Sketcher.Constraint("Tangent", 8, 1, 9, 2))
sketch10.addConstraint(Sketcher.Constraint("Tangent", 9, 1, 10, 2))
sketch10.addConstraint(Sketcher.Constraint("Tangent", 10, 1, 11, 2))
sketch10.addConstraint(Sketcher.Constraint("Tangent", 11, 1, 12, 2))
sketch10.addConstraint(Sketcher.Constraint("Tangent", 12, 1, 0, 1))
sketch10.addConstraint(Sketcher.Constraint("Vertical", 0))
sketch10.addConstraint(Sketcher.Constraint("Horizontal", 1))
sketch10.addConstraint(Sketcher.Constraint("Vertical", 2))
sketch10.addConstraint(Sketcher.Constraint("Equal", 3, 4))
sketch10.addConstraint(Sketcher.Constraint("Equal", 4, 5))
sketch10.addConstraint(Sketcher.Constraint("Equal", 5, 6))
sketch10.addConstraint(Sketcher.Constraint("Equal", 6, 7))
sketch10.addConstraint(Sketcher.Constraint("Equal", 7, 8))
sketch10.addConstraint(Sketcher.Constraint("Equal", 8, 9))
sketch10.addConstraint(Sketcher.Constraint("Equal", 9, 10))
sketch10.addConstraint(Sketcher.Constraint("Equal", 10, 11))
sketch10.addConstraint(Sketcher.Constraint("Equal", 11, 12))
sketch10.addConstraint(Sketcher.Constraint("Symmetric", 7, 3, 8, 3, -2))
sketch10.addConstraint(Sketcher.Constraint("Horizontal", 3, 3, 4, 3))
sketch10.addConstraint(Sketcher.Constraint("Horizontal", 4, 3, 5, 3))
sketch10.addConstraint(Sketcher.Constraint("Horizontal", 5, 3, 6, 3))
sketch10.addConstraint(Sketcher.Constraint("Horizontal", 6, 3, 7, 3))
sketch10.addConstraint(Sketcher.Constraint("Horizontal", 8, 3, 9, 3))
sketch10.addConstraint(Sketcher.Constraint("Horizontal", 9, 3, 10, 3))
sketch10.addConstraint(Sketcher.Constraint("Horizontal", 10, 3, 11, 3))
sketch10.addConstraint(Sketcher.Constraint("Horizontal", 11, 3, 12, 3))
sketch10.addConstraint(Sketcher.Constraint("Radius", 3, Q("60 mm")))
sketch10.addConstraint(Sketcher.Constraint("DistanceY", 0, 1, 0, 2, Q("140 mm")))
sketch10.addConstraint(Sketcher.Constraint("DistanceY", -1, 1, 3, 3, Q("1990 mm")))
sketch10.setExpression("Constraints[34]", "Params.sketch10_radius")
sketch10.setExpression("Constraints[35]", "Params.sketch10_height")
pad10 = doc.addObject("PartDesign::Pad", "Pad009")
body2.addObject(pad10)
pad10.Profile = sketch10
pad10.setExpression("Length", "Params.pad10_length")

sketch11 = doc.addObject("Sketcher::SketchObject", "Sketch010")
body2.addObject(sketch11)
sketch11.AttachmentSupport = (doc.getObject("YZ_Plane001"), [""])
sketch11.MapMode = "FlatFace"
sketch11.AttachmentOffset = App.Placement(Vector(0, 0, 600), App.Rotation())
sketch11.addGeometry(Part.LineSegment(Vector(360, 2130, 0), Vector(0, 2200, 0)), False)
sketch11.addGeometry(Part.LineSegment(Vector(0, 2200, 0), Vector(-360, 2130, 0)), False)
sketch11.addGeometry(Part.LineSegment(Vector(-360, 2130, 0), Vector(-360, 1990, 0)), False)
sketch11.addGeometry(Part.ArcOfCircle(Part.Circle(Vector(-300, 1990, 0), Vector(0, 0, 1), 60), math.radians(180), math.radians(360)), False)
sketch11.addGeometry(Part.ArcOfCircle(Part.Circle(Vector(-180, 1990, 0), Vector(0, 0, 1), 60), math.radians(180), math.radians(360)), False)
sketch11.addGeometry(Part.ArcOfCircle(Part.Circle(Vector(-60, 1990, 0), Vector(0, 0, 1), 60), math.radians(180), math.radians(360)), False)
sketch11.addGeometry(Part.ArcOfCircle(Part.Circle(Vector(60, 1990, 0), Vector(0, 0, 1), 60), math.radians(180), math.radians(360)), False)
sketch11.addGeometry(Part.ArcOfCircle(Part.Circle(Vector(180, 1990, 0), Vector(0, 0, 1), 60), math.radians(180), math.radians(360)), False)
sketch11.addGeometry(Part.ArcOfCircle(Part.Circle(Vector(300, 1990, 0), Vector(0, 0, 1), 60), math.radians(180), math.radians(360)), False)
sketch11.addGeometry(Part.LineSegment(Vector(360, 1990, 0), Vector(360, 2130, 0)), False)
sketch11.addConstraint(Sketcher.Constraint("Coincident", 0, 2, 1, 1))
sketch11.addConstraint(Sketcher.Constraint("Coincident", 1, 2, 2, 1))
sketch11.addConstraint(Sketcher.Constraint("Tangent", 2, 2, 3, 1))
sketch11.addConstraint(Sketcher.Constraint("Tangent", 3, 2, 4, 1))
sketch11.addConstraint(Sketcher.Constraint("Tangent", 4, 2, 5, 1))
sketch11.addConstraint(Sketcher.Constraint("Tangent", 5, 2, 6, 1))
sketch11.addConstraint(Sketcher.Constraint("Tangent", 6, 2, 7, 1))
sketch11.addConstraint(Sketcher.Constraint("Tangent", 7, 2, 8, 1))
sketch11.addConstraint(Sketcher.Constraint("Tangent", 8, 2, 9, 1))
sketch11.addConstraint(Sketcher.Constraint("Coincident", 9, 2, 0, 1))
sketch11.addConstraint(Sketcher.Constraint("Vertical", 2))
sketch11.addConstraint(Sketcher.Constraint("Vertical", 9))
sketch11.addConstraint(Sketcher.Constraint("Equal", 3, 4))
sketch11.addConstraint(Sketcher.Constraint("Equal", 4, 5))
sketch11.addConstraint(Sketcher.Constraint("Equal", 5, 6))
sketch11.addConstraint(Sketcher.Constraint("Equal", 6, 7))
sketch11.addConstraint(Sketcher.Constraint("Equal", 7, 8))
sketch11.addConstraint(Sketcher.Constraint("Symmetric", 5, 3, 6, 3, -2))
sketch11.addConstraint(Sketcher.Constraint("PointOnObject", 0, 2, -2))
sketch11.addConstraint(Sketcher.Constraint("Horizontal", 3, 3, 4, 3))
sketch11.addConstraint(Sketcher.Constraint("Horizontal", 4, 3, 5, 3))
sketch11.addConstraint(Sketcher.Constraint("Horizontal", 6, 3, 7, 3))
sketch11.addConstraint(Sketcher.Constraint("Horizontal", 7, 3, 8, 3))
sketch11.addConstraint(Sketcher.Constraint("Horizontal", 1, 2, 9, 2))
sketch11.addConstraint(Sketcher.Constraint("Radius", 3, Q("60 mm")))
sketch11.addConstraint(Sketcher.Constraint("DistanceY", 2, 2, 2, 1, Q("140 mm")))
sketch11.addConstraint(Sketcher.Constraint("DistanceY", -1, 1, 3, 3, Q("1990 mm")))
sketch11.addConstraint(Sketcher.Constraint("DistanceY", -1, 1, 0, 2, Q("2200 mm")))
sketch11.setExpression("Constraints[24]", "Params.sketch11_radius")
sketch11.setExpression("Constraints[25]", "Params.sketch11_height")
pad11 = doc.addObject("PartDesign::Pad", "Pad010")
body2.addObject(pad11)
pad11.Profile = sketch11
pad11.setExpression("Length", "Params.pad11_length")
pad11.Reversed = True

sketch12 = doc.addObject("Sketcher::SketchObject", "Sketch011")
body2.addObject(sketch12)
sketch12.AttachmentSupport = (doc.getObject("YZ_Plane001"), [""])
sketch12.MapMode = "FlatFace"
sketch12.AttachmentOffset = App.Placement(Vector(0, 0, -600), App.Rotation())
sketch12.addGeometry(Part.LineSegment(Vector(360, 2130, 0), Vector(360, 1990, 0)), False)
sketch12.addGeometry(Part.ArcOfCircle(Part.Circle(Vector(300, 1990, 0), Vector(0, 0, 1), 60), math.radians(180), math.radians(360)), False)
sketch12.addGeometry(Part.ArcOfCircle(Part.Circle(Vector(180, 1990, 0), Vector(0, 0, 1), 60), math.radians(180), math.radians(360)), False)
sketch12.addGeometry(Part.ArcOfCircle(Part.Circle(Vector(60, 1990, 0), Vector(0, 0, 1), 60), math.radians(180), math.radians(360)), False)
sketch12.addGeometry(Part.ArcOfCircle(Part.Circle(Vector(-60, 1990, 0), Vector(0, 0, 1), 60), math.radians(180), math.radians(360)), False)
sketch12.addGeometry(Part.ArcOfCircle(Part.Circle(Vector(-180, 1990, 0), Vector(0, 0, 1), 60), math.radians(180), math.radians(360)), False)
sketch12.addGeometry(Part.ArcOfCircle(Part.Circle(Vector(-300, 1990, 0), Vector(0, 0, 1), 60), math.radians(180), math.radians(360)), False)
sketch12.addGeometry(Part.LineSegment(Vector(-360, 1990, 0), Vector(-360, 2130, 0)), False)
sketch12.addGeometry(Part.LineSegment(Vector(-360, 2130, 0), Vector(0, 2200, 0)), False)
sketch12.addGeometry(Part.LineSegment(Vector(0, 2200, 0), Vector(360, 2130, 0)), False)
sketch12.addConstraint(Sketcher.Constraint("Tangent", 0, 2, 1, 2))
sketch12.addConstraint(Sketcher.Constraint("Tangent", 1, 1, 2, 2))
sketch12.addConstraint(Sketcher.Constraint("Tangent", 2, 1, 3, 2))
sketch12.addConstraint(Sketcher.Constraint("Tangent", 3, 1, 4, 2))
sketch12.addConstraint(Sketcher.Constraint("Tangent", 4, 1, 5, 2))
sketch12.addConstraint(Sketcher.Constraint("Tangent", 5, 1, 6, 2))
sketch12.addConstraint(Sketcher.Constraint("Tangent", 6, 1, 7, 1))
sketch12.addConstraint(Sketcher.Constraint("Coincident", 7, 2, 8, 1))
sketch12.addConstraint(Sketcher.Constraint("Coincident", 8, 2, 9, 1))
sketch12.addConstraint(Sketcher.Constraint("Coincident", 9, 2, 0, 1))
sketch12.addConstraint(Sketcher.Constraint("Vertical", 0))
sketch12.addConstraint(Sketcher.Constraint("Vertical", 7))
sketch12.addConstraint(Sketcher.Constraint("Equal", 1, 2))
sketch12.addConstraint(Sketcher.Constraint("Equal", 2, 3))
sketch12.addConstraint(Sketcher.Constraint("Equal", 3, 4))
sketch12.addConstraint(Sketcher.Constraint("Equal", 4, 5))
sketch12.addConstraint(Sketcher.Constraint("Equal", 5, 6))
sketch12.addConstraint(Sketcher.Constraint("Symmetric", 3, 3, 4, 3, -2))
sketch12.addConstraint(Sketcher.Constraint("PointOnObject", 8, 2, -2))
sketch12.addConstraint(Sketcher.Constraint("Horizontal", 1, 3, 2, 3))
sketch12.addConstraint(Sketcher.Constraint("Horizontal", 2, 3, 3, 3))
sketch12.addConstraint(Sketcher.Constraint("Horizontal", 4, 3, 5, 3))
sketch12.addConstraint(Sketcher.Constraint("Horizontal", 5, 3, 6, 3))
sketch12.addConstraint(Sketcher.Constraint("Horizontal", 7, 2, 9, 2))
sketch12.addConstraint(Sketcher.Constraint("Radius", 1, Q("60 mm")))
sketch12.addConstraint(Sketcher.Constraint("DistanceY", 0, 2, 0, 1, Q("140 mm")))
sketch12.addConstraint(Sketcher.Constraint("DistanceY", -1, 1, 1, 3, Q("1990 mm")))
sketch12.addConstraint(Sketcher.Constraint("DistanceY", -1, 1, 8, 2, Q("2200 mm")))
sketch12.setExpression("Constraints[24]", "Params.sketch12_radius")
sketch12.setExpression("Constraints[25]", "Params.sketch12_height")
pad12 = doc.addObject("PartDesign::Pad", "Pad011")
body2.addObject(pad12)
pad12.Profile = sketch12
pad12.setExpression("Length", "Params.pad12_length")
body.AllowCompound = True
doc.recompute()

boolean = doc.addObject("PartDesign::Boolean", "Boolean")
body.addObject(boolean)
boolean.Type = "Fuse"
boolean.addObjects([body2])

sketch13 = doc.addObject("Sketcher::SketchObject", "Sketch012")
body.addObject(sketch13)
sketch13.AttachmentSupport = (doc.XY_Plane, [""])
sketch13.MapMode = "FlatFace"
sketch13.AttachmentOffset = App.Placement(Vector(0, 0, 1400), App.Rotation())
sketch13.addGeometry(Part.Circle(Vector(-520, 0, 0), Vector(0, 0, 1), 15), False)
sketch13.addGeometry(Part.Circle(Vector(520, 0, 0), Vector(0, 0, 1), 15), False)
sketch13.addConstraint(Sketcher.Constraint("Equal", 0, 1))
sketch13.addConstraint(Sketcher.Constraint("Symmetric", 0, 3, 1, 3, -1, 1))
sketch13.addConstraint(Sketcher.Constraint("PointOnObject", 0, 3, -1))
sketch13.addConstraint(Sketcher.Constraint("Diameter", 0, Q("30 mm")))
sketch13.addConstraint(Sketcher.Constraint("DistanceX", 0, 3, -1, 1, Q("520 mm")))
sketch13.setExpression("Constraints[3]", "Params.sketch13_diameter")
pad13 = doc.addObject("PartDesign::Pad", "Pad012")
body.addObject(pad13)
pad13.Profile = sketch13
pad13.setExpression("Length", "Params.pad13_length")

sketch14 = doc.addObject("Sketcher::SketchObject", "Sketch013")
body.addObject(sketch14)
sketch14.AttachmentSupport = (doc.XY_Plane, [""])
sketch14.MapMode = "FlatFace"
sketch14.AttachmentOffset = App.Placement(Vector(0, 0, 150), App.Rotation())
sketch14.addGeometry(Part.LineSegment(Vector(520, -360, 0), Vector(-520, -360, 0)), False)
sketch14.addGeometry(Part.ArcOfCircle(Part.Circle(Vector(-520, -280, 0), Vector(0, 0, 1), 80), math.radians(180), math.radians(270)), False)
sketch14.addGeometry(Part.LineSegment(Vector(-600, -280, 0), Vector(-600, 280, 0)), False)
sketch14.addGeometry(Part.ArcOfCircle(Part.Circle(Vector(-520, 280, 0), Vector(0, 0, 1), 80), math.radians(90), math.radians(180)), False)
sketch14.addGeometry(Part.LineSegment(Vector(-520, 360, 0), Vector(520, 360, 0)), False)
sketch14.addGeometry(Part.ArcOfCircle(Part.Circle(Vector(520, 280, 0), Vector(0, 0, 1), 80), math.radians(0), math.radians(90)), False)
sketch14.addGeometry(Part.LineSegment(Vector(600, 280, 0), Vector(600, -280, 0)), False)
sketch14.addGeometry(Part.ArcOfCircle(Part.Circle(Vector(520, -280, 0), Vector(0, 0, 1), 80), math.radians(-90), math.radians(0)), False)
sketch14.addConstraint(Sketcher.Constraint("Tangent", 0, 2, 1, 2))
sketch14.addConstraint(Sketcher.Constraint("Tangent", 1, 1, 2, 1))
sketch14.addConstraint(Sketcher.Constraint("Tangent", 2, 2, 3, 2))
sketch14.addConstraint(Sketcher.Constraint("Tangent", 3, 1, 4, 1))
sketch14.addConstraint(Sketcher.Constraint("Tangent", 4, 2, 5, 2))
sketch14.addConstraint(Sketcher.Constraint("Tangent", 5, 1, 6, 1))
sketch14.addConstraint(Sketcher.Constraint("Tangent", 6, 2, 7, 2))
sketch14.addConstraint(Sketcher.Constraint("Tangent", 7, 1, 0, 1))
sketch14.addConstraint(Sketcher.Constraint("Horizontal", 0))
sketch14.addConstraint(Sketcher.Constraint("Vertical", 2))
sketch14.addConstraint(Sketcher.Constraint("Horizontal", 4))
sketch14.addConstraint(Sketcher.Constraint("Vertical", 6))
sketch14.addConstraint(Sketcher.Constraint("Equal", 1, 3))
sketch14.addConstraint(Sketcher.Constraint("Equal", 3, 5))
sketch14.addConstraint(Sketcher.Constraint("Equal", 5, 7))
sketch14.addConstraint(Sketcher.Constraint("Symmetric", 1, 3, 5, 3, -1, 1))
sketch14.addConstraint(Sketcher.Constraint("Radius", 1, Q("80 mm")))
sketch14.addConstraint(Sketcher.Constraint("DistanceX", 0, 2, 0, 1, Q("1040 mm")))
sketch14.addConstraint(Sketcher.Constraint("DistanceY", 2, 1, 2, 2, Q("560 mm")))
sketch14.setExpression("Constraints[16]", "Params.sketch14_radius")
sketch14.setExpression("Constraints[17]", "Params.sketch14_width")
sketch14.setExpression("Constraints[18]", "Params.sketch14_height")
pad14 = doc.addObject("PartDesign::Pad", "Pad013")
body.addObject(pad14)
pad14.Profile = sketch14
pad14.Type = "UpToLast"
pad14.Reversed = True

doc.recompute()
